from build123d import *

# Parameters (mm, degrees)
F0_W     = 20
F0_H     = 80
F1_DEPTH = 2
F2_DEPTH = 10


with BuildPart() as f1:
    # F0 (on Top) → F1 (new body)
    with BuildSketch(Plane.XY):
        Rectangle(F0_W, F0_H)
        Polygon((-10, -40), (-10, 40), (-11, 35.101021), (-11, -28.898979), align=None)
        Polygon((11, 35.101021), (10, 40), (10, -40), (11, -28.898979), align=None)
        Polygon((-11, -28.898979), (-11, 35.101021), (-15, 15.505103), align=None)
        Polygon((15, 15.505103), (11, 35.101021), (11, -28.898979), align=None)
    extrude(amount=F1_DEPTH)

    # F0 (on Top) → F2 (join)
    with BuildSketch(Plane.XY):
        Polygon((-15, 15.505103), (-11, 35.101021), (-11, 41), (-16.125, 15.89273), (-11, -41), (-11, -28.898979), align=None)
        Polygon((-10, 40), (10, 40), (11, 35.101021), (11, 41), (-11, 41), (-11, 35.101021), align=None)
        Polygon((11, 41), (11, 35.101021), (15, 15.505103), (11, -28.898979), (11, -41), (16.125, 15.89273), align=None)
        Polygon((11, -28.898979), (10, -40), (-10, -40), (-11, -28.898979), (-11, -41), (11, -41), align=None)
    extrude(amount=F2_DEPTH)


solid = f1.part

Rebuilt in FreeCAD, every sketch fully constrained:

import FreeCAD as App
import Part
import Sketcher
from FreeCAD import Vector

doc = App.newDocument("Part")
params = doc.addObject("Spreadsheet::Sheet", "Params")
for row, (alias, value) in enumerate([
    ("sketch1_width", "20 mm"),
    ("sketch1_length", "20 mm"),
    ("sketch1_length2", "5 mm"),
    ("pad1_length", "2 mm"),
    ("sketch2_width", "22 mm"),
    ("sketch2_width2", "20 mm"),
    ("sketch2_length", "20 mm"),
    ("sketch2_length2", "5 mm"),
    ("pad2_length", "10 mm"),
], start=1):
    params.set(f"A{row}", alias)
    params.set(f"B{row}", "=" + value)
    params.setAlias(f"B{row}", alias)

body = doc.addObject("PartDesign::Body", "Body")

sketch1 = body.newObject("Sketcher::SketchObject", "Sketch")
sketch1.AttachmentSupport = (doc.getObject("XY_Plane"), [""])
sketch1.MapMode = "FlatFace"
sketch1.addGeometry([
    Part.LineSegment(Vector(-10, -40, 0), Vector(10, -40, 0)),
    Part.LineSegment(Vector(10, -40, 0), Vector(11, -28.9, 0)),
    Part.LineSegment(Vector(11, -28.9, 0), Vector(15, 15.5, 0)),
    Part.LineSegment(Vector(15, 15.5, 0), Vector(11, 35.1, 0)),
    Part.LineSegment(Vector(11, 35.1, 0), Vector(10, 40, 0)),
    Part.LineSegment(Vector(10, 40, 0), Vector(-10, 40, 0)),
    Part.LineSegment(Vector(-10, 40, 0), Vector(-11, 35.1, 0)),
    Part.LineSegment(Vector(-11, 35.1, 0), Vector(-15, 15.5, 0)),
    Part.LineSegment(Vector(-15, 15.5, 0), Vector(-11, -28.9, 0)),
    Part.LineSegment(Vector(-11, -28.9, 0), Vector(-10, -40, 0)),
], False)
sketch1.addConstraint([
    Sketcher.Constraint("Coincident", 0, 2, 1, 1),
    Sketcher.Constraint("Coincident", 1, 2, 2, 1),
    Sketcher.Constraint("Coincident", 2, 2, 3, 1),
    Sketcher.Constraint("Coincident", 3, 2, 4, 1),
    Sketcher.Constraint("Coincident", 4, 2, 5, 1),
    Sketcher.Constraint("Coincident", 5, 2, 6, 1),
    Sketcher.Constraint("Coincident", 6, 2, 7, 1),
    Sketcher.Constraint("Coincident", 7, 2, 8, 1),
    Sketcher.Constraint("Coincident", 8, 2, 9, 1),
    Sketcher.Constraint("Coincident", 9, 2, 0, 1),
    Sketcher.Constraint("Horizontal", 0),
    Sketcher.Constraint("Horizontal", 5),
    Sketcher.Constraint("Symmetric", 0, 2, 5, 2, -1, 1),
    Sketcher.Constraint("Symmetric", 3, 2, 6, 2, -2),
    Sketcher.Constraint("Symmetric", 2, 2, 7, 2, -2),
    Sketcher.Constraint("Symmetric", 1, 2, 8, 2, -2),
    Sketcher.Constraint("Parallel", 1, 2),
    Sketcher.Constraint("Parallel", 3, 4),
    Sketcher.Constraint("Parallel", 6, 7),
    Sketcher.Constraint("Parallel", 8, 9),
    Sketcher.Constraint("Vertical", 1, 2, 3, 2),
    Sketcher.Constraint("DistanceX", 0, 1, 0, 2, 20.0),
    Sketcher.Constraint("Distance", 3, 20.0),
    Sketcher.Constraint("Distance", 4, 5.0),
    Sketcher.Constraint("DistanceY", 0, 2, -1, 1, 40.0),
    Sketcher.Constraint("DistanceX", -1, 1, 1, 2, 11.0),
])
sketch1.setExpression("Constraints[21]", "Params.sketch1_width")
sketch1.setExpression("Constraints[22]", "Params.sketch1_length")
sketch1.setExpression("Constraints[23]", "Params.sketch1_length2")
pad1 = body.newObject("PartDesign::Pad", "Pad")
pad1.Profile = sketch1
pad1.setExpression("Length", "Params.pad1_length")

sketch2 = body.newObject("Sketcher::SketchObject", "Sketch001")
sketch2.AttachmentSupport = (doc.getObject("XY_Plane"), [""])
sketch2.MapMode = "FlatFace"
sketch2.addGeometry([
    Part.LineSegment(Vector(11, -41, 0), Vector(16.1, 15.9, 0)),
    Part.LineSegment(Vector(16.1, 15.9, 0), Vector(11, 41, 0)),
    Part.LineSegment(Vector(11, 41, 0), Vector(-11, 41, 0)),
    Part.LineSegment(Vector(-11, 41, 0), Vector(-16.1, 15.9, 0)),
    Part.LineSegment(Vector(-16.1, 15.9, 0), Vector(-11, -41, 0)),
    Part.LineSegment(Vector(-11, -41, 0), Vector(11, -41, 0)),
    Part.LineSegment(Vector(-15, 15.5, 0), Vector(-11, 35.1, 0)),
    Part.LineSegment(Vector(-11, 35.1, 0), Vector(-10, 40, 0)),
    Part.LineSegment(Vector(-10, 40, 0), Vector(10, 40, 0)),
    Part.LineSegment(Vector(10, 40, 0), Vector(11, 35.1, 0)),
    Part.LineSegment(Vector(11, 35.1, 0), Vector(15, 15.5, 0)),
    Part.LineSegment(Vector(15, 15.5, 0), Vector(11, -28.9, 0)),
    Part.LineSegment(Vector(11, -28.9, 0), Vector(10, -40, 0)),
    Part.LineSegment(Vector(10, -40, 0), Vector(-10, -40, 0)),
    Part.LineSegment(Vector(-10, -40, 0), Vector(-11, -28.9, 0)),
    Part.LineSegment(Vector(-11, -28.9, 0), Vector(-15, 15.5, 0)),
], False)
sketch2.addConstraint([
    Sketcher.Constraint("Coincident", 0, 2, 1, 1),
    Sketcher.Constraint("Coincident", 1, 2, 2, 1),
    Sketcher.Constraint("Coincident", 2, 2, 3, 1),
    Sketcher.Constraint("Coincident", 3, 2, 4, 1),
    Sketcher.Constraint("Coincident", 4, 2, 5, 1),
    Sketcher.Constraint("Coincident", 5, 2, 0, 1),
    Sketcher.Constraint("Coincident", 6, 2, 7, 1),
    Sketcher.Constraint("Coincident", 7, 2, 8, 1),
    Sketcher.Constraint("Coincident", 8, 2, 9, 1),
    Sketcher.Constraint("Coincident", 9, 2, 10, 1),
    Sketcher.Constraint("Coincident", 10, 2, 11, 1),
    Sketcher.Constraint("Coincident", 11, 2, 12, 1),
    Sketcher.Constraint("Coincident", 12, 2, 13, 1),
    Sketcher.Constraint("Coincident", 13, 2, 14, 1),
    Sketcher.Constraint("Coincident", 14, 2, 15, 1),
    Sketcher.Constraint("Coincident", 15, 2, 6, 1),
    Sketcher.Constraint("Horizontal", 2),
    Sketcher.Constraint("Horizontal", 5),
    Sketcher.Constraint("Horizontal", 8),
    Sketcher.Constraint("Horizontal", 13),
    Sketcher.Constraint("Symmetric", 1, 2, 4, 2, -1, 1),
    Sketcher.Constraint("Symmetric", 7, 2, 12, 2, -1, 1),
    Sketcher.Constraint("Symmetric", 0, 2, 3, 2, -2),
    Sketcher.Constraint("Symmetric", 6, 2, 9, 2, -2),
    Sketcher.Constraint("Symmetric", 11, 2, 14, 2, -2),
    Sketcher.Constraint("Symmetric", 10, 2, 15, 2, -2),
    Sketcher.Constraint("Parallel", 3, 6),
    Sketcher.Constraint("Parallel", 6, 7),
    Sketcher.Constraint("Parallel", 1, 9),
    Sketcher.Constraint("Parallel", 9, 10),
    Sketcher.Constraint("Parallel", 0, 11),
    Sketcher.Constraint("Parallel", 11, 12),
    Sketcher.Constraint("Parallel", 4, 14),
    Sketcher.Constraint("Parallel", 14, 15),
    Sketcher.Constraint("Vertical", 4, 2, 6, 2),
    Sketcher.Constraint("Vertical", 9, 2, 11, 2),
    Sketcher.Constraint("DistanceX", 2, 2, 2, 1, 22.0),
    Sketcher.Constraint("DistanceX", 8, 1, 8, 2, 20.0),
    Sketcher.Constraint("Distance", 6, 20.0),
    Sketcher.Constraint("Distance", 7, 5.0),
    Sketcher.Constraint("DistanceY", -1, 1, 1, 2, 41.0),
    Sketcher.Constraint("DistanceY", -1, 1, 7, 2, 40.0),
])
sketch2.setExpression("Constraints[36]", "Params.sketch2_width")
sketch2.setExpression("Constraints[37]", "Params.sketch2_width2")
sketch2.setExpression("Constraints[38]", "Params.sketch2_length")
sketch2.setExpression("Constraints[39]", "Params.sketch2_length2")
pad2 = body.newObject("PartDesign::Pad", "Pad001")
pad2.Profile = sketch2
pad2.setExpression("Length", "Params.pad2_length")

doc.recompute()
